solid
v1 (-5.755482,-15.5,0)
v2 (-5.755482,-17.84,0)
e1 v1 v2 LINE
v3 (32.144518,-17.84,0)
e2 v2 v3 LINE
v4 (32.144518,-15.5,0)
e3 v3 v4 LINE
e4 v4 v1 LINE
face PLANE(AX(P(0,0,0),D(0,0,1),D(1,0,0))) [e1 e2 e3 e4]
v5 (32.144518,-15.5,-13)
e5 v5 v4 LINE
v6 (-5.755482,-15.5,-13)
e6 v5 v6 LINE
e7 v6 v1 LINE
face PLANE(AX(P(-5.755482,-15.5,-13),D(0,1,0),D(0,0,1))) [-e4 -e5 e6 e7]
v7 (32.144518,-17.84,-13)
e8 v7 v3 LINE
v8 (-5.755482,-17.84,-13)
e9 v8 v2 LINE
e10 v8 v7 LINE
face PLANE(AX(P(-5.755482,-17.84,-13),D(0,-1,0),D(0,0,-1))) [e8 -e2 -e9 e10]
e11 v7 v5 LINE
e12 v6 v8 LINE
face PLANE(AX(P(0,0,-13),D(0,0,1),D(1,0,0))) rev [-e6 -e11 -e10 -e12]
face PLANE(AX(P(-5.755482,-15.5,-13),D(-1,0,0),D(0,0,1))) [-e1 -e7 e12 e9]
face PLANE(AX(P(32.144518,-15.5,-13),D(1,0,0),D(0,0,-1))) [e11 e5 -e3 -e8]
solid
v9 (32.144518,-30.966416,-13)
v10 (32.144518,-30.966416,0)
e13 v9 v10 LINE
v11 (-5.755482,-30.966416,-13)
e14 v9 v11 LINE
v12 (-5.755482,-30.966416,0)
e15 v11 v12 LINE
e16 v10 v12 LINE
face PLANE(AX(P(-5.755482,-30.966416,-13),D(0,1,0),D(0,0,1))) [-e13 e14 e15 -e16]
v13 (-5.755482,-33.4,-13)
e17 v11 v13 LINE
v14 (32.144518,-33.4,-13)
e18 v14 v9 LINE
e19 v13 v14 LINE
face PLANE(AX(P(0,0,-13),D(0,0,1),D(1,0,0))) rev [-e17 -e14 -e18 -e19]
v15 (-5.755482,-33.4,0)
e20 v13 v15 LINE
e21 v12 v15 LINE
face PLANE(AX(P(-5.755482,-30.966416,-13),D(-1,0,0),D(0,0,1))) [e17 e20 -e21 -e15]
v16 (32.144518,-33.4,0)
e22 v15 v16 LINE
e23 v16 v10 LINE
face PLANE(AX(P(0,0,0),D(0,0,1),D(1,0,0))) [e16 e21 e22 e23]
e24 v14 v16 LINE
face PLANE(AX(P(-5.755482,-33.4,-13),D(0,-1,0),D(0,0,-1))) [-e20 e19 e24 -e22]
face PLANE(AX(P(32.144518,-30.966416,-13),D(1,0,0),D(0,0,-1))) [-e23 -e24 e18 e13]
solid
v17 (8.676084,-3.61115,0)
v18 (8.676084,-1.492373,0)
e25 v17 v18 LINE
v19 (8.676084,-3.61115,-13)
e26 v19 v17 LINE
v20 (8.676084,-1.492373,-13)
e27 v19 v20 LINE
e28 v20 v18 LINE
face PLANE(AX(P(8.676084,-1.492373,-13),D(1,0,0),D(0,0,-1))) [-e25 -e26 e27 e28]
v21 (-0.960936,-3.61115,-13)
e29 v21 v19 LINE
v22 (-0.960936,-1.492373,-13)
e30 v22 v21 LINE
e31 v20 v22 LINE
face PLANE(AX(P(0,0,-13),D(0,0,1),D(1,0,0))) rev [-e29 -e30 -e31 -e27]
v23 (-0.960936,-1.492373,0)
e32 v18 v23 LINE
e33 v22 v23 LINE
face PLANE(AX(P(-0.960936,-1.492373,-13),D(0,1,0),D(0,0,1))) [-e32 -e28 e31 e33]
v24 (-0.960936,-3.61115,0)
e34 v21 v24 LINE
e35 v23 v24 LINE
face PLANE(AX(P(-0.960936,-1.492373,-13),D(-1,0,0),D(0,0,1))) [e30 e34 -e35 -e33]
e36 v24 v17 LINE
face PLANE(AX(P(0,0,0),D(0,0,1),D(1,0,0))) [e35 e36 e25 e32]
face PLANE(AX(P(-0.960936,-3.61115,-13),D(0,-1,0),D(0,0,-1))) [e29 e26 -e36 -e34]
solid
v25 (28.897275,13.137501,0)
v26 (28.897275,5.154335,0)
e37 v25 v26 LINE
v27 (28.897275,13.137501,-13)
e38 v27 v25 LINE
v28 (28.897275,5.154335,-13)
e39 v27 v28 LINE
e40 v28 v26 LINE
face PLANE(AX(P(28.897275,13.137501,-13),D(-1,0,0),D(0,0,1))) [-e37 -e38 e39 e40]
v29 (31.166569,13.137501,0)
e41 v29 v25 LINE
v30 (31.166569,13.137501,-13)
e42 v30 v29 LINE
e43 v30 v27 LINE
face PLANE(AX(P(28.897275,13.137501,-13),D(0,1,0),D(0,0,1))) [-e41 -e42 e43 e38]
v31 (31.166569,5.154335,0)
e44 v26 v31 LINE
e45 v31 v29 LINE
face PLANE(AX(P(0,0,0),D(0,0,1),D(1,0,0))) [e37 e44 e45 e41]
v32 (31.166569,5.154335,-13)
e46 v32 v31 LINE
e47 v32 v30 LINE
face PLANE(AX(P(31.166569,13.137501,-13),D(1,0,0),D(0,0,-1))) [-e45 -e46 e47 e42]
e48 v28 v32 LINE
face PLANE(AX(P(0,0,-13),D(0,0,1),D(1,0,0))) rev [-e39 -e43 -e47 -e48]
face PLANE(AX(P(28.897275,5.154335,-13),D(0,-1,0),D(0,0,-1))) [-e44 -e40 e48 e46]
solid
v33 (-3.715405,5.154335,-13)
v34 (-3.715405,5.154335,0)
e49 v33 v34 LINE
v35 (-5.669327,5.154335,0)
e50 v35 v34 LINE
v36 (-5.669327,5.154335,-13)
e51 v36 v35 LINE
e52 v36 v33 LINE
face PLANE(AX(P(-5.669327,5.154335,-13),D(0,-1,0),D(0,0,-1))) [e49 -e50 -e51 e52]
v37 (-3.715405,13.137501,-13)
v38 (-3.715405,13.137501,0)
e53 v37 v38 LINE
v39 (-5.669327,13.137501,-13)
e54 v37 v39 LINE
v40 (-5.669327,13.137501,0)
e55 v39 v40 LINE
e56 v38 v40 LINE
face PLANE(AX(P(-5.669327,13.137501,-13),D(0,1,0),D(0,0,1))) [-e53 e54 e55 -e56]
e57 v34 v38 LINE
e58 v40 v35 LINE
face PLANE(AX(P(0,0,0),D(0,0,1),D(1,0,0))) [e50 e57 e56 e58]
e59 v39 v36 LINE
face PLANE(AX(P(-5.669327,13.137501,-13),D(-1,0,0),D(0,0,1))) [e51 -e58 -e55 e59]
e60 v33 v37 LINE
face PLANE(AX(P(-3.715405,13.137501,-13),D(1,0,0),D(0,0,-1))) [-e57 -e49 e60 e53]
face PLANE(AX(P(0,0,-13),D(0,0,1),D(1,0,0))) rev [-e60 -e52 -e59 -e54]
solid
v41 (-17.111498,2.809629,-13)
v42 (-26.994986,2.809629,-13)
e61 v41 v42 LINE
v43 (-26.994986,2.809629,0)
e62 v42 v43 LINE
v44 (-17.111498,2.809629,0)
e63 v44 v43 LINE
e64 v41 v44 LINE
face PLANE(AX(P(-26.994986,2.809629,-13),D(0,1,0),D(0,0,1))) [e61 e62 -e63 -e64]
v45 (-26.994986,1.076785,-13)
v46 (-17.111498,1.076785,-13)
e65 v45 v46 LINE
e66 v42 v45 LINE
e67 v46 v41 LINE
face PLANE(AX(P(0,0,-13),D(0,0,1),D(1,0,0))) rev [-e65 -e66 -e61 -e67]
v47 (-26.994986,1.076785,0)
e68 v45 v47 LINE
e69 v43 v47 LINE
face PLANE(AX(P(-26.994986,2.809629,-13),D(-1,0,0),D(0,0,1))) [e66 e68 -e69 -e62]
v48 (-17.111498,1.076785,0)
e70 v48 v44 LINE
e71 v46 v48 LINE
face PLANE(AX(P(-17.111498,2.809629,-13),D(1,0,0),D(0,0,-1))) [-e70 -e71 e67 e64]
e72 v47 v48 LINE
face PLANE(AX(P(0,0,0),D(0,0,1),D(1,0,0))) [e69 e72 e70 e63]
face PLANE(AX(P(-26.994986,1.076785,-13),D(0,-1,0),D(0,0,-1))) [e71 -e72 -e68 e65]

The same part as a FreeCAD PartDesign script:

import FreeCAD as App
import Part
import Sketcher
from FreeCAD import Vector


def add_polygon(sketch, points):
    """Adds a closed chain of lines whose ends are joined by coincident constraints."""
    first, n = sketch.GeometryCount, len(points)
    for a, b in zip(points, points[1:] + points[:1]):
        sketch.addGeometry(Part.LineSegment(App.Vector(*a, 0), App.Vector(*b, 0)), False)
    for i in range(n):
        sketch.addConstraint(Sketcher.Constraint("Coincident", first + i, 2, first + (i + 1) % n, 1))

doc = App.newDocument("Part")
body = doc.addObject("PartDesign::Body", "Body")

# Sketch on XY plane
sketch1 = doc.addObject("Sketcher::SketchObject", "Sketch")
body.addObject(sketch1)
sketch1.AttachmentSupport = (doc.XY_Plane, [""])
sketch1.MapMode = "FlatFace"
add_polygon(sketch1, [(-0.960936, -1.492373), (-0.960936, -3.61115), (8.676084, -3.61115), (8.676084, -1.492373)])  # lines 0-3
sketch1.addConstraint([
    Sketcher.Constraint("Vertical", 0),
    Sketcher.Constraint("Horizontal", 1),
    Sketcher.Constraint("Vertical", 2),
    Sketcher.Constraint("Horizontal", 3),
    Sketcher.Constraint("DistanceX", 1, 1, 1, 2, 9.63702),
    Sketcher.Constraint("DistanceY", 0, 2, 0, 1, 2.118777),
    Sketcher.Constraint("DistanceY", 0, 2, -1, 1, 3.61115),
    Sketcher.Constraint("DistanceX", 0, 2, -1, 1, 0.960936),
])
pad1 = doc.addObject("PartDesign::Pad", "Pad")
body.addObject(pad1)
pad1.Profile = sketch1
pad1.Length = 13
pad1.Reversed = True
body2 = doc.addObject("PartDesign::Body", "Body001")

# Sketch on XY plane
sketch2 = doc.addObject("Sketcher::SketchObject", "Sketch001")
body2.addObject(sketch2)
sketch2.AttachmentSupport = (doc.getObject("XY_Plane001"), [""])
sketch2.MapMode = "FlatFace"
add_polygon(sketch2, [(-26.994986, 2.809629), (-26.994986, 1.076785), (-17.111498, 1.076785), (-17.111498, 2.809629)])  # lines 0-3
sketch2.addConstraint([
    Sketcher.Constraint("Vertical", 0),
    Sketcher.Constraint("Horizontal", 1),
    Sketcher.Constraint("Vertical", 2),
    Sketcher.Constraint("Horizontal", 3),
    Sketcher.Constraint("DistanceX", 1, 1, 1, 2, 9.883488),
    Sketcher.Constraint("DistanceY", 0, 2, 0, 1, 1.732844),
    Sketcher.Constraint("DistanceY", -1, 1, 2, 2, 2.809629),
    Sketcher.Constraint("DistanceX", 0, 2, -1, 1, 26.994986),
])
pad2 = doc.addObject("PartDesign::Pad", "Pad001")
body2.addObject(pad2)
pad2.Profile = sketch2
pad2.Length = 13
pad2.Reversed = True
body3 = doc.addObject("PartDesign::Body", "Body002")

# Sketch on XY plane
sketch3 = doc.addObject("Sketcher::SketchObject", "Sketch002")
body3.addObject(sketch3)
sketch3.AttachmentSupport = (doc.getObject("XY_Plane002"), [""])
sketch3.MapMode = "FlatFace"
add_polygon(sketch3, [(-5.669327, 13.137501), (-5.669327, 5.154335), (-3.715405, 5.154335), (-3.715405, 13.137501)])  # lines 0-3
sketch3.addConstraint([
    Sketcher.Constraint("Vertical", 0),
    Sketcher.Constraint("Horizontal", 1),
    Sketcher.Constraint("Vertical", 2),
    Sketcher.Constraint("Horizontal", 3),
    Sketcher.Constraint("DistanceX", 1, 1, 1, 2, 1.953922),
    Sketcher.Constraint("DistanceY", -1, 1, 2, 2, 13.137501),
    Sketcher.Constraint("DistanceY", 0, 2, 0, 1, 7.983166),
    Sketcher.Constraint("DistanceX", 0, 2, -1, 1, 5.669327),
])
pad3 = doc.addObject("PartDesign::Pad", "Pad002")
body3.addObject(pad3)
pad3.Profile = sketch3
pad3.Length = 13
pad3.Reversed = True
body4 = doc.addObject("PartDesign::Body", "Body003")

# Sketch on XY plane
sketch4 = doc.addObject("Sketcher::SketchObject", "Sketch003")
body4.addObject(sketch4)
sketch4.AttachmentSupport = (doc.getObject("XY_Plane003"), [""])
sketch4.MapMode = "FlatFace"
add_polygon(sketch4, [(-5.755482, -15.5), (-5.755482, -17.84), (32.144518, -17.84), (32.144518, -15.5)])  # lines 0-3
sketch4.addConstraint([
    Sketcher.Constraint("Vertical", 0),
    Sketcher.Constraint("Horizontal", 1),
    Sketcher.Constraint("Vertical", 2),
    Sketcher.Constraint("Horizontal", 3),
    Sketcher.Constraint("DistanceX", 1, 1, 1, 2, 37.9),
    Sketcher.Constraint("DistanceY", 0, 2, 0, 1, 2.34),
    Sketcher.Constraint("DistanceY", 2, 2, -1, 1, 15.5),
    Sketcher.Constraint("DistanceX", 0, 2, -1, 1, 5.755482),
])
pad4 = doc.addObject("PartDesign::Pad", "Pad003")
body4.addObject(pad4)
pad4.Profile = sketch4
pad4.Length = 13
pad4.Reversed = True
body5 = doc.addObject("PartDesign::Body", "Body004")

# Sketch on XY plane
sketch5 = doc.addObject("Sketcher::SketchObject", "Sketch004")
body5.addObject(sketch5)
sketch5.AttachmentSupport = (doc.getObject("XY_Plane004"), [""])
sketch5.MapMode = "FlatFace"
add_polygon(sketch5, [(28.897275, 13.137501), (28.897275, 5.154335), (31.166569, 5.154335), (31.166569, 13.137501)])  # lines 0-3
sketch5.addConstraint([
    Sketcher.Constraint("Vertical", 0),
    Sketcher.Constraint("Horizontal", 1),
    Sketcher.Constraint("Vertical", 2),
    Sketcher.Constraint("Horizontal", 3),
    Sketcher.Constraint("DistanceY", -1, 1, 2, 2, 13.137501),
    Sketcher.Constraint("DistanceX", 1, 1, 1, 2, 2.269294),
    Sketcher.Constraint("DistanceY", 0, 2, 0, 1, 7.983166),
    Sketcher.Constraint("DistanceX", -1, 1, 1, 2, 31.166569),
])
pad5 = doc.addObject("PartDesign::Pad", "Pad004")
body5.addObject(pad5)
pad5.Profile = sketch5
pad5.Length = 13
pad5.Reversed = True
body6 = doc.addObject("PartDesign::Body", "Body005")

# Sketch on XY plane
sketch6 = doc.addObject("Sketcher::SketchObject", "Sketch005")
body6.addObject(sketch6)
sketch6.AttachmentSupport = (doc.getObject("XY_Plane005"), [""])
sketch6.MapMode = "FlatFace"
add_polygon(sketch6, [(-5.755482, -30.966416), (-5.755482, -33.4), (32.144518, -33.4), (32.144518, -30.966416)])  # lines 0-3
sketch6.addConstraint([
    Sketcher.Constraint("Vertical", 0),
    Sketcher.Constraint("Horizontal", 1),
    Sketcher.Constraint("Vertical", 2),
    Sketcher.Constraint("Horizontal", 3),
    Sketcher.Constraint("DistanceX", 1, 1, 1, 2, 37.9),
    Sketcher.Constraint("DistanceY", 0, 2, -1, 1, 33.4),
    Sketcher.Constraint("DistanceY", 0, 2, 0, 1, 2.433584),
    Sketcher.Constraint("DistanceX", 0, 2, -1, 1, 5.755482),
])
pad6 = doc.addObject("PartDesign::Pad", "Pad005")
body6.addObject(pad6)
pad6.Profile = sketch6
pad6.Length = 13
pad6.Reversed = True

doc.recompute()
